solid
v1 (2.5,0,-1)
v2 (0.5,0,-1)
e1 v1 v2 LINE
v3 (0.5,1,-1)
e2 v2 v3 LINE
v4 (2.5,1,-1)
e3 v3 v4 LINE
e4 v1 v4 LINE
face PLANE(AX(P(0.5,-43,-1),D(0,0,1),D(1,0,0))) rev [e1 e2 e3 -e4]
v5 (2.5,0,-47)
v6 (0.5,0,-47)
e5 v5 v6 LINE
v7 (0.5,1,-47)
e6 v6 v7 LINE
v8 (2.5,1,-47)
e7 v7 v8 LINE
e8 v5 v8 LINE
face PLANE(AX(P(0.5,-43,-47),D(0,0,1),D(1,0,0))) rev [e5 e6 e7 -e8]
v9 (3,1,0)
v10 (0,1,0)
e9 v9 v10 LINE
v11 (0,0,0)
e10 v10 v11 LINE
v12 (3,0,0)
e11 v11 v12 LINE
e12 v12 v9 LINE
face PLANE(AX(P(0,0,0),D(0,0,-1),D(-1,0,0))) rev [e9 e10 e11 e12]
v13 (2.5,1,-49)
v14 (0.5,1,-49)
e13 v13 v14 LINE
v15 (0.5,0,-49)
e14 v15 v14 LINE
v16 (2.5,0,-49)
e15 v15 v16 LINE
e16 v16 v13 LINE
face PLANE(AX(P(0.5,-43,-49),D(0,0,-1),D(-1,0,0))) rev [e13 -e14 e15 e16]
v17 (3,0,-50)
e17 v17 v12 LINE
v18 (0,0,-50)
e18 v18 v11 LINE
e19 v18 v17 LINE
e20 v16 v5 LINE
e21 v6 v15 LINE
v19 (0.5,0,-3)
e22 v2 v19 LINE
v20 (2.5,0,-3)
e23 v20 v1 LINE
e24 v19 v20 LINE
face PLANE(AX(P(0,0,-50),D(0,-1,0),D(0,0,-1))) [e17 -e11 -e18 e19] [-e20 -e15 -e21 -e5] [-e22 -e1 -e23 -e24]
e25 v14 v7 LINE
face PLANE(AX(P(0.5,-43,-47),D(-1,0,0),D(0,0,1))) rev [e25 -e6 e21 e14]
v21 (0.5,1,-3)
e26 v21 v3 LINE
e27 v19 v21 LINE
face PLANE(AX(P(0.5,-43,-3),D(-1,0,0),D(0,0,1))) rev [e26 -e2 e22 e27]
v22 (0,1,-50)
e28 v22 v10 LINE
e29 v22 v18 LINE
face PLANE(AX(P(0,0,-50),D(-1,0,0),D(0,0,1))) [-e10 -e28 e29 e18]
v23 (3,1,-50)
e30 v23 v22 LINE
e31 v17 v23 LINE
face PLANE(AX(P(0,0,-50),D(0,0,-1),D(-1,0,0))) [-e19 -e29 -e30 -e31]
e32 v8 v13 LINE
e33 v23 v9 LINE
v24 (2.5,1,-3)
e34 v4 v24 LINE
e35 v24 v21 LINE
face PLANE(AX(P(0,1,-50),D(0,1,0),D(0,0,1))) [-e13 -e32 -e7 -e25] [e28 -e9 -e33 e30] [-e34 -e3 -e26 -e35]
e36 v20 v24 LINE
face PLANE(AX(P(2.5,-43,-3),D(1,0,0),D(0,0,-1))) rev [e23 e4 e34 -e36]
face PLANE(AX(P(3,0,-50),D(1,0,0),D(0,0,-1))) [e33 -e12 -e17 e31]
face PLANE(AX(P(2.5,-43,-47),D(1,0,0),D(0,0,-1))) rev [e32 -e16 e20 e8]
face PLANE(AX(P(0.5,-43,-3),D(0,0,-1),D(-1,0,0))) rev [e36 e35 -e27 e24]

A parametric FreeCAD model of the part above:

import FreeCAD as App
import Part
import Sketcher


def add_polygon(sketch, points):
    """Adds a closed chain of lines whose ends are joined by coincident constraints."""
    first, n = sketch.GeometryCount, len(points)
    for a, b in zip(points, points[1:] + points[:1]):
        sketch.addGeometry(Part.LineSegment(App.Vector(*a, 0), App.Vector(*b, 0)), False)
    for i in range(n):
        sketch.addConstraint(Sketcher.Constraint("Coincident", first + i, 2, first + (i + 1) % n, 1))

doc = App.newDocument("Part")
params = doc.addObject("Spreadsheet::Sheet", "Params")
for row, (alias, value) in enumerate([
    ("sketch1_width", "3 mm"),
    ("sketch1_height", "1 mm"),
    ("pad1_length", "50 mm"),
    ("sketch2_width", "2 mm"),
    ("pocket1_length", "44 mm"),
], start=1):
    params.set(f"A{row}", alias)
    params.set(f"B{row}", "=" + value)
    params.setAlias(f"B{row}", alias)

body = doc.addObject("PartDesign::Body", "Body")

# Sketch on XY plane
sketch1 = body.newObject("Sketcher::SketchObject", "Sketch")
sketch1.AttachmentSupport = (doc.getObject("XY_Plane"), [""])
sketch1.MapMode = "FlatFace"
add_polygon(sketch1, [(0, 1), (0, 0), (3, 0), (3, 1)])  # lines 0-3
sketch1.addConstraint([
    Sketcher.Constraint("Vertical", 0),
    Sketcher.Constraint("Horizontal", 1),
    Sketcher.Constraint("Vertical", 2),
    Sketcher.Constraint("Horizontal", 3),
    Sketcher.Constraint("Coincident", 0, 2, -1, 1),
    Sketcher.Constraint("DistanceX", 1, 1, 1, 2, 3.0),
    Sketcher.Constraint("DistanceY", 0, 2, 0, 1, 1.0),
])
sketch1.setExpression("Constraints[9]", "Params.sketch1_width")
sketch1.setExpression("Constraints[10]", "Params.sketch1_height")
pad1 = body.newObject("PartDesign::Pad", "Pad")
pad1.Profile = sketch1
pad1.setExpression("Length", "Params.pad1_length")
pad1.Reversed = True

# Sketch on XZ plane
sketch2 = body.newObject("Sketcher::SketchObject", "Sketch001")
sketch2.AttachmentSupport = (doc.getObject("XZ_Plane"), [""])
sketch2.MapMode = "FlatFace"
sketch2.AttachmentOffset = App.Placement(App.Vector(0, 0, -1), App.Rotation())
add_polygon(sketch2, [(0.5, -3), (0.5, -1), (2.5, -1), (2.5, -3)])  # lines 0-3
add_polygon(sketch2, [(0.5, -49), (0.5, -47), (2.5, -47), (2.5, -49)])  # lines 4-7
sketch2.addConstraint([
    Sketcher.Constraint("Vertical", 0),
    Sketcher.Constraint("Horizontal", 1),
    Sketcher.Constraint("Vertical", 2),
    Sketcher.Constraint("Horizontal", 3),
    Sketcher.Constraint("Vertical", 4),
    Sketcher.Constraint("Horizontal", 5),
    Sketcher.Constraint("Vertical", 6),
    Sketcher.Constraint("Horizontal", 7),
    Sketcher.Constraint("Vertical", 3, 2, 4, 2),
    Sketcher.Constraint("Vertical", 2, 2, 5, 2),
    Sketcher.Constraint("Equal", 7, 0),
    Sketcher.Constraint("Equal", 2, 4),
    Sketcher.Constraint("DistanceX", 1, 1, 1, 2, 2.0),
    Sketcher.Constraint("DistanceY", 0, 2, -1, 1, 1.0),
    Sketcher.Constraint("DistanceY", 4, 2, -1, 1, 47.0),
    Sketcher.Constraint("DistanceX", -1, 1, 0, 2, 0.5),
])
sketch2.setExpression("Constraints[20]", "Params.sketch2_width")
pocket1 = body.newObject("PartDesign::Pocket", "Pocket")
pocket1.Profile = sketch2
pocket1.setExpression("Length", "Params.pocket1_length")
pocket1.Reversed = True

doc.recompute()
